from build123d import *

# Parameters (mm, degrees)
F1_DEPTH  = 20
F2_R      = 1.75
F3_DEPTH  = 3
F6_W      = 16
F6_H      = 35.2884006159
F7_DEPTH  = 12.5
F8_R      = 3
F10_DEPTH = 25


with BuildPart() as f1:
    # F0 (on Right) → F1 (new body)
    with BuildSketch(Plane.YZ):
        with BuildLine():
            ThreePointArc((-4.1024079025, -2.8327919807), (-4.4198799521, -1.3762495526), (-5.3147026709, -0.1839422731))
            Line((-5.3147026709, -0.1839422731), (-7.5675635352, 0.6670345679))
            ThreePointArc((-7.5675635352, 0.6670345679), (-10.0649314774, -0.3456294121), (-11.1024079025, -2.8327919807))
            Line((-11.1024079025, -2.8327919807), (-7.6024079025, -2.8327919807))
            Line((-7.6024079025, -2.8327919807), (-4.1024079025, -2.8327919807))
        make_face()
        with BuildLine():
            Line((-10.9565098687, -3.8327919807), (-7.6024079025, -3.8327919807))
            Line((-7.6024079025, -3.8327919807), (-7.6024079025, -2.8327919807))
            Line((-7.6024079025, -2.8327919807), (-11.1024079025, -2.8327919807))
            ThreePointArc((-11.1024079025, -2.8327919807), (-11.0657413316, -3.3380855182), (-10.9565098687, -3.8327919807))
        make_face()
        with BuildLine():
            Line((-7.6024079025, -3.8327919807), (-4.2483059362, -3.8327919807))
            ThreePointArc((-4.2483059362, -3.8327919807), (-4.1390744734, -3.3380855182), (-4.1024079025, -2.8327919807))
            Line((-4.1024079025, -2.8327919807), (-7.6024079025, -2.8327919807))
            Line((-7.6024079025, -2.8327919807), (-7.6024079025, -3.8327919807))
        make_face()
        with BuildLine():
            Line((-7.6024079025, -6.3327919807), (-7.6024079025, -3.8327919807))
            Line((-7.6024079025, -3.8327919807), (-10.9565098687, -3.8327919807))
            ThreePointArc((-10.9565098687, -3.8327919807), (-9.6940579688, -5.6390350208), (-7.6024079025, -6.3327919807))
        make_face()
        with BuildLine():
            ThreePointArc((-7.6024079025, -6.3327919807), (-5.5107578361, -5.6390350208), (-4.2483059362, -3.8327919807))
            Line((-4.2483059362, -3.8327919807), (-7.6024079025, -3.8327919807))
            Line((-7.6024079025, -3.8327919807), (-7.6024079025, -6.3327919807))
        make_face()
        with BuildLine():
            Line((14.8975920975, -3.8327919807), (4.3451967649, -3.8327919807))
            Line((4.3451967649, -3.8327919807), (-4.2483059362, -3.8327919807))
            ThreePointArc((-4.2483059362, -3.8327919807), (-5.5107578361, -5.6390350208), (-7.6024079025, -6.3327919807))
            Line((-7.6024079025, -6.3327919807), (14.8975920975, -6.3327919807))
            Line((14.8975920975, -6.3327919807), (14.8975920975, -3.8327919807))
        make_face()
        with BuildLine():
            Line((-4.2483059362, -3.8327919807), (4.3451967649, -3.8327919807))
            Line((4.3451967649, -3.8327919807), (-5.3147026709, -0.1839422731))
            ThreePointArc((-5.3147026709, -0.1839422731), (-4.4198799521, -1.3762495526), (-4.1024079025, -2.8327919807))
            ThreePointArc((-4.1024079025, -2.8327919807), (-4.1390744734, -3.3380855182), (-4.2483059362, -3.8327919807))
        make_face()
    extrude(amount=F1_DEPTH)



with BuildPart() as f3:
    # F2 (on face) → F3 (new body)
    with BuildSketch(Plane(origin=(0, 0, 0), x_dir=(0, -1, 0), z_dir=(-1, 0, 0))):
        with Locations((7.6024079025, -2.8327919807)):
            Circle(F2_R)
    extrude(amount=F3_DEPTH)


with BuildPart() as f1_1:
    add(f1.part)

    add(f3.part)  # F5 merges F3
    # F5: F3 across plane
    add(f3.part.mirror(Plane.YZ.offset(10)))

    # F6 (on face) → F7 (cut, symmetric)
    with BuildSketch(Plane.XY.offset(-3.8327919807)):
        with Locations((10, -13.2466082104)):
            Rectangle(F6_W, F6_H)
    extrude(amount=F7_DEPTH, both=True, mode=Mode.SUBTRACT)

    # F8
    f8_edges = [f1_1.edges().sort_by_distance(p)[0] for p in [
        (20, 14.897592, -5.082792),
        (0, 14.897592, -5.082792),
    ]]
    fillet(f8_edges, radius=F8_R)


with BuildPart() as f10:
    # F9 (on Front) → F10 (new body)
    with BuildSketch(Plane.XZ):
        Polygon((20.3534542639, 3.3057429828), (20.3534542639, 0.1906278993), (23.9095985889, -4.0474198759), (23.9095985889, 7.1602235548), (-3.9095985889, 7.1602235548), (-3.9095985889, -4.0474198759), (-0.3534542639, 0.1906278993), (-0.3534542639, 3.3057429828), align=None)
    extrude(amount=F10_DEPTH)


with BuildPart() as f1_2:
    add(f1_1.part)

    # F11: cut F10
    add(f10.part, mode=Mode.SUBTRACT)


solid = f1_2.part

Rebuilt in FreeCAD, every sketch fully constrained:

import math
import FreeCAD as App
import Part
import Sketcher
Q = App.Units.Quantity


def edges_at(feature, points):
    """Names of the edges that pass closest to the given points."""
    edges = feature.Shape.Edges
    near = lambda p: min(range(len(edges)), key=lambda i: edges[i].distToShape(Part.Vertex(*p))[0])
    return sorted({f"Edge{near(p) + 1}" for p in points})


def add_polygon(sketch, points):
    """Adds a closed chain of lines whose ends are joined by coincident constraints."""
    first, n = sketch.GeometryCount, len(points)
    for a, b in zip(points, points[1:] + points[:1]):
        sketch.addGeometry(Part.LineSegment(App.Vector(*a, 0), App.Vector(*b, 0)), False)
    for i in range(n):
        sketch.addConstraint(Sketcher.Constraint("Coincident", first + i, 2, first + (i + 1) % n, 1))

doc = App.newDocument("Part")
body = doc.addObject("PartDesign::Body", "Body")

sketch1 = body.newObject("Sketcher::SketchObject", "Sketch")
sketch1.AttachmentSupport = (doc.getObject("YZ_Plane"), [""])
sketch1.MapMode = "FlatFace"
sketch1.addGeometry(Part.LineSegment(App.Vector(-5.3, -0.2, 0), App.Vector(-7.6, 0.7, 0)), False)
sketch1.addGeometry(Part.ArcOfCircle(Part.Circle(App.Vector(-7.6, -2.8, 0), App.Vector(0, 0, 1), 3.5), math.radians(89), math.radians(180)), False)
sketch1.addGeometry(Part.ArcOfCircle(Part.Circle(App.Vector(-7.6, -2.8, 0), App.Vector(0, 0, 1), 3.5), math.radians(180), math.radians(196.6)), False)
sketch1.addGeometry(Part.ArcOfCircle(Part.Circle(App.Vector(-7.6, -2.8, 0), App.Vector(0, 0, 1), 3.5), math.radians(-163), math.radians(-90)), False)
sketch1.addGeometry(Part.LineSegment(App.Vector(-7.6, -6.3, 0), App.Vector(14.9, -6.3, 0)), False)
sketch1.addGeometry(Part.LineSegment(App.Vector(14.9, -6.3, 0), App.Vector(14.9, -3.8, 0)), False)
sketch1.addGeometry(Part.LineSegment(App.Vector(14.9, -3.8, 0), App.Vector(4.3, -3.8, 0)), False)
sketch1.addGeometry(Part.LineSegment(App.Vector(4.3, -3.8, 0), App.Vector(-5.3, -0.2, 0)), False)
sketch1.addConstraint(Sketcher.Constraint("Coincident", 0, 2, 1, 1))
sketch1.addConstraint(Sketcher.Constraint("Tangent", 1, 2, 2, 1))
sketch1.addConstraint(Sketcher.Constraint("Tangent", 2, 2, 3, 1))
sketch1.addConstraint(Sketcher.Constraint("Tangent", 3, 2, 4, 1))
sketch1.addConstraint(Sketcher.Constraint("Coincident", 4, 2, 5, 1))
sketch1.addConstraint(Sketcher.Constraint("Coincident", 5, 2, 6, 1))
sketch1.addConstraint(Sketcher.Constraint("Coincident", 6, 2, 7, 1))
sketch1.addConstraint(Sketcher.Constraint("Coincident", 7, 2, 0, 1))
sketch1.addConstraint(Sketcher.Constraint("Horizontal", 4))
sketch1.addConstraint(Sketcher.Constraint("Vertical", 5))
sketch1.addConstraint(Sketcher.Constraint("Horizontal", 6))
sketch1.addConstraint(Sketcher.Constraint("Coincident", 3, 3, 1, 3))
sketch1.addConstraint(Sketcher.Constraint("Parallel", 0, 7))
sketch1.addConstraint(Sketcher.Constraint("Horizontal", 3, 3, 1, 2))
sketch1.addConstraint(Sketcher.Constraint("Horizontal", 2, 2, 5, 2))
sketch1.addConstraint(Sketcher.Constraint("Radius", 1, Q("3.5 mm")))
sketch1.addConstraint(Sketcher.Constraint("DistanceX", 4, 1, 4, 2, Q("22.5 mm")))
sketch1.addConstraint(Sketcher.Constraint("DistanceY", 5, 1, 5, 2, Q("2.5 mm")))
sketch1.addConstraint(Sketcher.Constraint("Distance", 7, Q("10.326072 mm")))
sketch1.addConstraint(Sketcher.Constraint("DistanceX", 6, 2, 6, 1, Q("10.552395 mm")))
sketch1.addConstraint(Sketcher.Constraint("DistanceY", 1, 3, -1, 1, Q("2.832792 mm")))
sketch1.addConstraint(Sketcher.Constraint("DistanceX", 2, 2, -1, 1, Q("10.95651 mm")))
sketch1.addConstraint(Sketcher.Constraint("DistanceX", 0, 2, 7, 2, Q("2.252861 mm")))
pad1 = body.newObject("PartDesign::Pad", "Pad")
pad1.Profile = sketch1
pad1.Length = 20
body2 = doc.addObject("PartDesign::Body", "Body001")

sketch2 = body2.newObject("Sketcher::SketchObject", "Sketch001")
sketch2.AttachmentSupport = (doc.getObject("YZ_Plane001"), [""])
sketch2.MapMode = "FlatFace"
sketch2.addGeometry(Part.Circle(App.Vector(-7.6, -2.8, 0), App.Vector(0, 0, 1), 1.8), False)
sketch2.addConstraint(Sketcher.Constraint("Diameter", 0, Q("3.5 mm")))
sketch2.addConstraint(Sketcher.Constraint("DistanceY", 0, 3, -1, 1, Q("2.832792 mm")))
sketch2.addConstraint(Sketcher.Constraint("DistanceX", 0, 3, -1, 1, Q("7.602408 mm")))
pad2 = body2.newObject("PartDesign::Pad", "Pad001")
pad2.Profile = sketch2
pad2.Length = 3
pad2.Reversed = True
doc.recompute()

body3 = doc.addObject("PartDesign::Body", "Body002")
body3.BaseFeature = body2
boolean = body.newObject("PartDesign::Boolean", "Boolean")
boolean.Type = "Fuse"
boolean.addObjects([body3])
doc.recompute()

mirroring = doc.addObject("Part::Mirroring", "Mirroring")
mirroring.Source = body2
mirroring.Base = App.Vector(10, 0, 0)
mirroring.Normal = App.Vector(1, 0, 0)
body4 = doc.addObject("PartDesign::Body", "Body003")
body4.BaseFeature = mirroring
boolean2 = body.newObject("PartDesign::Boolean", "Boolean001")
boolean2.Type = "Fuse"
boolean2.addObjects([body4])
doc.recompute()

sketch3 = body.newObject("Sketcher::SketchObject", "Sketch002")
sketch3.AttachmentSupport = (doc.getObject("XY_Plane"), [""])
sketch3.MapMode = "FlatFace"
sketch3.AttachmentOffset = App.Placement(App.Vector(0, 0, -3.832792), App.Rotation())
add_polygon(sketch3, [(2, 4), (2, -31), (18, -31), (18, 4)])
sketch3.addConstraint(Sketcher.Constraint("Vertical", 0))
sketch3.addConstraint(Sketcher.Constraint("Horizontal", 1))
sketch3.addConstraint(Sketcher.Constraint("Vertical", 2))
sketch3.addConstraint(Sketcher.Constraint("Horizontal", 3))
sketch3.addConstraint(Sketcher.Constraint("DistanceX", 1, 1, 1, 2, Q("16 mm")))
sketch3.addConstraint(Sketcher.Constraint("DistanceX", -1, 1, 0, 2, Q("2 mm")))
sketch3.addConstraint(Sketcher.Constraint("DistanceY", 0, 2, 0, 1, Q("35.288401 mm")))
sketch3.addConstraint(Sketcher.Constraint("DistanceY", 0, 2, -1, 1, Q("30.890809 mm")))
pocket1 = body.newObject("PartDesign::Pocket", "Pocket")
pocket1.Profile = sketch3
pocket1.Length = 25
pocket1.Midplane = True
doc.recompute()

fillet = body.newObject("PartDesign::Fillet", "Fillet")
fillet.Base = (pocket1, edges_at(pocket1, [(20, 14.898, -5.083), (0, 14.898, -5.083)]))
fillet.Radius = 3
body5 = doc.addObject("PartDesign::Body", "Body004")

sketch4 = body5.newObject("Sketcher::SketchObject", "Sketch003")
sketch4.AttachmentSupport = (doc.getObject("XZ_Plane004"), [""])
sketch4.MapMode = "FlatFace"
add_polygon(sketch4, [(20.4, 3.3), (20.4, 0.2), (23.9, -4), (23.9, 7.2), (-3.9, 7.2), (-3.9, -4), (-0.4, 0.2), (-0.4, 3.3)])
sketch4.addConstraint(Sketcher.Constraint("Vertical", 0))
sketch4.addConstraint(Sketcher.Constraint("Vertical", 2))
sketch4.addConstraint(Sketcher.Constraint("Horizontal", 3))
sketch4.addConstraint(Sketcher.Constraint("Vertical", 4))
sketch4.addConstraint(Sketcher.Constraint("Vertical", 6))
sketch4.addConstraint(Sketcher.Constraint("Horizontal", 7))
sketch4.addConstraint(Sketcher.Constraint("Horizontal", 1, 2, 4, 2))
sketch4.addConstraint(Sketcher.Constraint("Horizontal", 0, 2, 5, 2))
sketch4.addConstraint(Sketcher.Constraint("Equal", 1, 5))
sketch4.addConstraint(Sketcher.Constraint("Angle", 1, Q("-50 deg")))
sketch4.addConstraint(Sketcher.Constraint("DistanceX", 7, 1, 7, 2, Q("20.706909 mm")))
sketch4.addConstraint(Sketcher.Constraint("DistanceX", -1, 1, 1, 2, Q("23.909599 mm")))
sketch4.addConstraint(Sketcher.Constraint("DistanceX", 3, 2, -1, 1, Q("3.909599 mm")))
sketch4.addConstraint(Sketcher.Constraint("DistanceY", 0, 2, 0, 1, Q("3.115115 mm")))
sketch4.addConstraint(Sketcher.Constraint("DistanceY", 2, 1, 2, 2, Q("11.207643 mm")))
sketch4.addConstraint(Sketcher.Constraint("DistanceY", 1, 2, -1, 1, Q("4.04742 mm")))
pad3 = body5.newObject("PartDesign::Pad", "Pad002")
pad3.Profile = sketch4
pad3.Length = 25
doc.recompute()

boolean3 = body.newObject("PartDesign::Boolean", "Boolean002")
boolean3.Type = "Cut"
boolean3.addObjects([body5])
mirroring.Visibility = False

doc.recompute()
